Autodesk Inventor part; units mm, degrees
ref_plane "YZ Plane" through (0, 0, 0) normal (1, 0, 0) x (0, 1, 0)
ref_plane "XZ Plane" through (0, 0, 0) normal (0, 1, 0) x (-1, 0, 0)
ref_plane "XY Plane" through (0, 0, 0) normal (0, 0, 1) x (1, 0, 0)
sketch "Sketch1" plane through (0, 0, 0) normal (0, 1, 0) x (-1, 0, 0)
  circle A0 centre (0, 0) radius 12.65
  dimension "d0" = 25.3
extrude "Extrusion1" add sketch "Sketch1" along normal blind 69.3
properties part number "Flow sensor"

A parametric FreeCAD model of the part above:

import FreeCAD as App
import Part
import Sketcher
from FreeCAD import Vector

doc = App.newDocument("Part")
body = doc.addObject("PartDesign::Body", "Body")

# Sketch on XZ plane
sketch1 = body.newObject("Sketcher::SketchObject", "Sketch")
sketch1.AttachmentSupport = (doc.getObject("XZ_Plane"), [""])
sketch1.MapMode = "FlatFace"
sketch1.addGeometry(Part.Circle(Vector(0, 0, 0), Vector(0, 0, 1), 13), False)
sketch1.addConstraint([
    Sketcher.Constraint("Coincident", 0, 3, -1, 1),
    Sketcher.Constraint("Diameter", 0, 25.3),
])
pad1 = body.newObject("PartDesign::Pad", "Pad")
pad1.Profile = sketch1
pad1.Length = 69.3
pad1.Reversed = True

doc.recompute()
